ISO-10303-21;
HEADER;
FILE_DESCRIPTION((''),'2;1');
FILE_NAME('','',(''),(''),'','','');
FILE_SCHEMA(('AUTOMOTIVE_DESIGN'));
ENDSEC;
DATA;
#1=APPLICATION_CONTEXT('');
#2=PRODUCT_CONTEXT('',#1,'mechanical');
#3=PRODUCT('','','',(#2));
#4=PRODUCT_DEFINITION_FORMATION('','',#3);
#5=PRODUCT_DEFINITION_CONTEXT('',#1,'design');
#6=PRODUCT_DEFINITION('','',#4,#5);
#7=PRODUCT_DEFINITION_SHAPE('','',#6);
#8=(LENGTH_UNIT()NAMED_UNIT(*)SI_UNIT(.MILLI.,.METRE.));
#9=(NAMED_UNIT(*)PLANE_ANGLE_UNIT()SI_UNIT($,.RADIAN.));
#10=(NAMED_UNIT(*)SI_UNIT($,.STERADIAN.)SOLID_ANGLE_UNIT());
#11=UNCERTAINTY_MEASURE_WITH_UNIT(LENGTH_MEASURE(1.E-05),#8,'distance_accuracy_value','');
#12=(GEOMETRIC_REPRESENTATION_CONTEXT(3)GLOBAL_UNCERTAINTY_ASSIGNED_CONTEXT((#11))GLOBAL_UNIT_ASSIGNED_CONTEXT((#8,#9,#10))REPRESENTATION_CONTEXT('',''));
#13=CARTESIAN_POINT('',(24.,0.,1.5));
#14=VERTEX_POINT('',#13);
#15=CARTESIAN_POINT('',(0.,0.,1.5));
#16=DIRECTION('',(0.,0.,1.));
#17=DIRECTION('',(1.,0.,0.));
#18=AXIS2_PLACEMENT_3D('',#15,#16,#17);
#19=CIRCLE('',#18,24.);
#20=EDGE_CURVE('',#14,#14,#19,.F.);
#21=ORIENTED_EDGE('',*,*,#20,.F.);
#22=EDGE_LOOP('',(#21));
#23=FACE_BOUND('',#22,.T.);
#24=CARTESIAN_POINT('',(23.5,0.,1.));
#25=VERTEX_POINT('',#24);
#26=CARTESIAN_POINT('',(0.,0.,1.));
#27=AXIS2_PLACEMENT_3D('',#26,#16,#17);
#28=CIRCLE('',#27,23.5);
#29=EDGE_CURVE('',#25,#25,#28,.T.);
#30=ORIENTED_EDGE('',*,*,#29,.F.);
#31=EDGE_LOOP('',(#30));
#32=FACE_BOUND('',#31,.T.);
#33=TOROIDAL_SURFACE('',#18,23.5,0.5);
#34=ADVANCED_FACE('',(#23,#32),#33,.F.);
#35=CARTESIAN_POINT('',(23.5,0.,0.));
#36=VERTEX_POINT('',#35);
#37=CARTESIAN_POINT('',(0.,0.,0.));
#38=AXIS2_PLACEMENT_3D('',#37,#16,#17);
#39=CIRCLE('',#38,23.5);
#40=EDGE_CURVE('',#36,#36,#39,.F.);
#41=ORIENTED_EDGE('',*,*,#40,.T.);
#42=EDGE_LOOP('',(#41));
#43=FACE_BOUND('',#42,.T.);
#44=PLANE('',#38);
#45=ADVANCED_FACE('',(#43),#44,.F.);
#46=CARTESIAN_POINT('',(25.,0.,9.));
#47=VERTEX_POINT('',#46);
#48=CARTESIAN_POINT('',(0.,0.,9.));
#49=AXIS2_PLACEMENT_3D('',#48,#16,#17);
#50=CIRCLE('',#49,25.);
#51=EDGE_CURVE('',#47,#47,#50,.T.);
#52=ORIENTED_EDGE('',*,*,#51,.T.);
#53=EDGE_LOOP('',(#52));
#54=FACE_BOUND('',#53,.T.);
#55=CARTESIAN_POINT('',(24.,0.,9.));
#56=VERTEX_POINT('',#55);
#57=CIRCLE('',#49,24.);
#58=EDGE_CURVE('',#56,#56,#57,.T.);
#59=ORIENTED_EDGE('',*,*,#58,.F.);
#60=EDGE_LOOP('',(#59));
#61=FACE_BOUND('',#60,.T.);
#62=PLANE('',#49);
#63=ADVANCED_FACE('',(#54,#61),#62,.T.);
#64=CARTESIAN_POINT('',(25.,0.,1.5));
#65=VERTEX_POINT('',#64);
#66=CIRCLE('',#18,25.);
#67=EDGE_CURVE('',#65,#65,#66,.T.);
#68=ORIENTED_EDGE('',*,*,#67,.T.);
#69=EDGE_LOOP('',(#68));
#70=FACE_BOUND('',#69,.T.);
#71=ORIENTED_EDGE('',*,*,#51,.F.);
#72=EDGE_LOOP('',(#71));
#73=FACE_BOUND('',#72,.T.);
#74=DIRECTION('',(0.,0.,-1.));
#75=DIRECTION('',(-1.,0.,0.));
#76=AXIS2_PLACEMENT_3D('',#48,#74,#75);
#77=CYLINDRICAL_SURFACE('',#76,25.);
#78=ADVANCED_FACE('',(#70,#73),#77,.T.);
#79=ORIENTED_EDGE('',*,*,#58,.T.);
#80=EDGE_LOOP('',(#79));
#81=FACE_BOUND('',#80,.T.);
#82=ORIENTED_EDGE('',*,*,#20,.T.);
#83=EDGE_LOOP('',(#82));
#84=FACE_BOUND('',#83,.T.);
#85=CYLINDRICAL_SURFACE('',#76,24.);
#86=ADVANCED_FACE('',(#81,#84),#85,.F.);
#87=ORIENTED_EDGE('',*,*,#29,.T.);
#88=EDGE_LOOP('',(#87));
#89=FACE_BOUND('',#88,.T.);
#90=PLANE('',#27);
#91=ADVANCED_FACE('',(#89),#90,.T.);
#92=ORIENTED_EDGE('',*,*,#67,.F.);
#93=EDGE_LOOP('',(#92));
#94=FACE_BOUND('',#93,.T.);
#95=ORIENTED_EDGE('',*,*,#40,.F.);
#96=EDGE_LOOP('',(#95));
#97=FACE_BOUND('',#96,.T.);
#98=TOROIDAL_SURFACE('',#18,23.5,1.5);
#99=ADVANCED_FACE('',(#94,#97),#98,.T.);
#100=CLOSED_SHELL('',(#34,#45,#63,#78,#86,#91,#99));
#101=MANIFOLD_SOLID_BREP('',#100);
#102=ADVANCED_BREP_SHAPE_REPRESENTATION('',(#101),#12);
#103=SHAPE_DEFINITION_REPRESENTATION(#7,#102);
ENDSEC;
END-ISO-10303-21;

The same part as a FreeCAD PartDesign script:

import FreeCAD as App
import Part
import Sketcher
from FreeCAD import Vector
Q = App.Units.Quantity


def edges_at(feature, points):
    """Names of the edges that pass closest to the given points."""
    edges = feature.Shape.Edges
    near = lambda p: min(range(len(edges)), key=lambda i: edges[i].distToShape(Part.Vertex(*p))[0])
    return sorted({f"Edge{near(p) + 1}" for p in points})


def faces_at(feature, points):
    """Names of the faces that lie closest to the given points."""
    faces = feature.Shape.Faces
    near = lambda p: min(range(len(faces)), key=lambda i: faces[i].distToShape(Part.Vertex(*p))[0])
    return sorted({f"Face{near(p) + 1}" for p in points})

doc = App.newDocument("Part")
body = doc.addObject("PartDesign::Body", "Body")

# Sketch on XY plane
sketch1 = body.newObject("Sketcher::SketchObject", "Sketch")
sketch1.AttachmentSupport = (doc.getObject("XY_Plane"), [""])
sketch1.MapMode = "FlatFace"
sketch1.addGeometry(Part.Circle(Vector(0, 0, 0), Vector(0, 0, 1), 25), False)
sketch1.addConstraint(Sketcher.Constraint("Coincident", 0, 3, -1, 1))
sketch1.addConstraint(Sketcher.Constraint("Diameter", 0, Q("50 mm")))
pad1 = body.newObject("PartDesign::Pad", "Pad")
pad1.Profile = sketch1
pad1.Length = 9
doc.recompute()

thickness = body.newObject("PartDesign::Thickness", "Thickness")
thickness.Base = (pad1, faces_at(pad1, [(0, 0, 9)]))
thickness.Value = 1
thickness.Reversed = True
thickness.Join = "Intersection"
doc.recompute()

fillet = body.newObject("PartDesign::Fillet", "Fillet")
fillet.Base = (thickness, edges_at(thickness, [(-24, 0, 1)]))
fillet.Radius = 0.5
doc.recompute()

fillet2 = body.newObject("PartDesign::Fillet", "Fillet001")
fillet2.Base = (fillet, edges_at(fillet, [(-25, 0, 0)]))
fillet2.Radius = 1.5

doc.recompute()
